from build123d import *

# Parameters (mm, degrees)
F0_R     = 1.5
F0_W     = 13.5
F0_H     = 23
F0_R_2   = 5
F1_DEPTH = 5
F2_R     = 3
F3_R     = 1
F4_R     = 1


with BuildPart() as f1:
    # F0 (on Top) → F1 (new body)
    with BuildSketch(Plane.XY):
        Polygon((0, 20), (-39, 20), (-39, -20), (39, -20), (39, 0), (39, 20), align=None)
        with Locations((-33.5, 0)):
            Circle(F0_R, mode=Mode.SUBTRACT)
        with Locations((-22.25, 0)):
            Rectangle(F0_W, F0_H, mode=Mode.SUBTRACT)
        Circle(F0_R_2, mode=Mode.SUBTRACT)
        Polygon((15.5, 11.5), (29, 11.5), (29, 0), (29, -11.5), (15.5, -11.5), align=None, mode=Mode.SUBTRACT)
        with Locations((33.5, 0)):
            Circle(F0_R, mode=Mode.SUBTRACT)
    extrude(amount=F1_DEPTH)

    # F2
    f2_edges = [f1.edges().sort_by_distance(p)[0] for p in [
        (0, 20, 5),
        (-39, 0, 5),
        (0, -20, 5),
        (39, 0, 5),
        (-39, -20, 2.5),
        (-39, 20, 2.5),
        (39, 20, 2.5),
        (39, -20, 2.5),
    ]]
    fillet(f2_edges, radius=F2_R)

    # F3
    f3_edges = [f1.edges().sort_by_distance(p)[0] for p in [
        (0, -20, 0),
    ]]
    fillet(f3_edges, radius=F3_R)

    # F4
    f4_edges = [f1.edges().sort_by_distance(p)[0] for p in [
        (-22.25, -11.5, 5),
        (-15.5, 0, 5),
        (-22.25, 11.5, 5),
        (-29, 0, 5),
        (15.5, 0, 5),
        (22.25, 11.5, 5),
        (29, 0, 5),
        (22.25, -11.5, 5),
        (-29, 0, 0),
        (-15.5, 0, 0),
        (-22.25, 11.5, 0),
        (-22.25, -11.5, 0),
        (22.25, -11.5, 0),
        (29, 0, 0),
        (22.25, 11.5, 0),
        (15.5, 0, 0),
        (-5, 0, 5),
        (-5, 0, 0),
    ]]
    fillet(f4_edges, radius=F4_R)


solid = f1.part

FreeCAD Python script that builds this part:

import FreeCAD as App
import Part
import Sketcher
from FreeCAD import Vector


def edges_at(feature, points):
    """Names of the edges that pass closest to the given points."""
    edges = feature.Shape.Edges
    near = lambda p: min(range(len(edges)), key=lambda i: edges[i].distToShape(Part.Vertex(*p))[0])
    return sorted({f"Edge{near(p) + 1}" for p in points})

doc = App.newDocument("Part")
body = doc.addObject("PartDesign::Body", "Body")

# Sketch on XY plane
sketch1 = body.newObject("Sketcher::SketchObject", "Sketch")
sketch1.AttachmentSupport = (doc.getObject("XY_Plane"), [""])
sketch1.MapMode = "FlatFace"
sketch1.addGeometry([
    Part.LineSegment(Vector(-39, 20, 0), Vector(-39, -20, 0)),  # 0
    Part.LineSegment(Vector(-39, -20, 0), Vector(39, -20, 0)),  # 1
    Part.LineSegment(Vector(39, -20, 0), Vector(39, 20, 0)),  # 2
    Part.LineSegment(Vector(39, 20, 0), Vector(-39, 20, 0)),  # 3
    Part.Circle(Vector(-33.5, 0, 0), Vector(0, 0, 1), 1.5),  # 4
    Part.LineSegment(Vector(-15.5, -11.5, 0), Vector(-29, -11.5, 0)),  # 5
    Part.LineSegment(Vector(-29, -11.5, 0), Vector(-29, 11.5, 0)),  # 6
    Part.LineSegment(Vector(-29, 11.5, 0), Vector(-15.5, 11.5, 0)),  # 7
    Part.LineSegment(Vector(-15.5, 11.5, 0), Vector(-15.5, -11.5, 0)),  # 8
    Part.Circle(Vector(0, 0, 0), Vector(0, 0, 1), 5),  # 9
    Part.LineSegment(Vector(15.5, -11.5, 0), Vector(15.5, 11.5, 0)),  # 10
    Part.LineSegment(Vector(15.5, 11.5, 0), Vector(29, 11.5, 0)),  # 11
    Part.LineSegment(Vector(29, 11.5, 0), Vector(29, -11.5, 0)),  # 12
    Part.LineSegment(Vector(29, -11.5, 0), Vector(15.5, -11.5, 0)),  # 13
    Part.Circle(Vector(33.5, 0, 0), Vector(0, 0, 1), 1.5),  # 14
], False)
sketch1.addConstraint([
    Sketcher.Constraint("Coincident", 0, 2, 1, 1),
    Sketcher.Constraint("Coincident", 1, 2, 2, 1),
    Sketcher.Constraint("Coincident", 2, 2, 3, 1),
    Sketcher.Constraint("Coincident", 3, 2, 0, 1),
    Sketcher.Constraint("Coincident", 5, 2, 6, 1),
    Sketcher.Constraint("Coincident", 6, 2, 7, 1),
    Sketcher.Constraint("Coincident", 7, 2, 8, 1),
    Sketcher.Constraint("Coincident", 8, 2, 5, 1),
    Sketcher.Constraint("Coincident", 10, 2, 11, 1),
    Sketcher.Constraint("Coincident", 11, 2, 12, 1),
    Sketcher.Constraint("Coincident", 12, 2, 13, 1),
    Sketcher.Constraint("Coincident", 13, 2, 10, 1),
    Sketcher.Constraint("Vertical", 0),
    Sketcher.Constraint("Horizontal", 1),
    Sketcher.Constraint("Vertical", 2),
    Sketcher.Constraint("Horizontal", 3),
    Sketcher.Constraint("Horizontal", 5),
    Sketcher.Constraint("Vertical", 6),
    Sketcher.Constraint("Horizontal", 7),
    Sketcher.Constraint("Vertical", 8),
    Sketcher.Constraint("Vertical", 10),
    Sketcher.Constraint("Horizontal", 11),
    Sketcher.Constraint("Vertical", 12),
    Sketcher.Constraint("Horizontal", 13),
    Sketcher.Constraint("Coincident", 9, 3, -1, 1),
    Sketcher.Constraint("Equal", 4, 14),
    Sketcher.Constraint("Symmetric", 4, 3, 14, 3, -1, 1),
    Sketcher.Constraint("Symmetric", 0, 2, 2, 2, -1, 1),
    Sketcher.Constraint("Symmetric", 8, 2, 10, 2, -1, 1),
    Sketcher.Constraint("Symmetric", 6, 2, 12, 2, -1, 1),
    Sketcher.Constraint("PointOnObject", 4, 3, -1),
    Sketcher.Constraint("Horizontal", 7, 2, 10, 2),
    Sketcher.Constraint("Diameter", 4, 3.0),
    Sketcher.Constraint("Diameter", 9, 10.0),
    Sketcher.Constraint("DistanceX", 1, 1, 1, 2, 78.0),
    Sketcher.Constraint("DistanceY", 0, 2, 0, 1, 40.0),
    Sketcher.Constraint("DistanceY", 6, 1, 6, 2, 23.0),
    Sketcher.Constraint("DistanceX", 5, 2, 5, 1, 13.5),
    Sketcher.Constraint("DistanceX", 5, 2, -1, 1, 29.0),
    Sketcher.Constraint("DistanceX", 4, 3, 14, 3, 67.0),
])
pad1 = body.newObject("PartDesign::Pad", "Pad")
pad1.Profile = sketch1
pad1.Length = 5
doc.recompute()

fillet = body.newObject("PartDesign::Fillet", "Fillet")
fillet.Base = (pad1, edges_at(pad1, [
    (0, 20, 5),
    (-39, 0, 5),
    (0, -20, 5),
    (39, 0, 5),
    (-39, -20, 2.5),
    (-39, 20, 2.5),
    (39, 20, 2.5),
    (39, -20, 2.5),
]))
fillet.Radius = 3
doc.recompute()

fillet2 = body.newObject("PartDesign::Fillet", "Fillet001")
fillet2.Base = (fillet, edges_at(fillet, [(0, -20, 0)]))
fillet2.Radius = 1
doc.recompute()

fillet3 = body.newObject("PartDesign::Fillet", "Fillet002")
fillet3.Base = (fillet2, edges_at(fillet2, [
    (-22.25, -11.5, 5),
    (-15.5, 0, 5),
    (-22.25, 11.5, 5),
    (-29, 0, 5),
    (15.5, 0, 5),
    (22.25, 11.5, 5),
    (29, 0, 5),
    (22.25, -11.5, 5),
    (-29, 0, 0),
    (-15.5, 0, 0),
    (-22.25, 11.5, 0),
    (-22.25, -11.5, 0),
    (22.25, -11.5, 0),
    (29, 0, 0),
    (22.25, 11.5, 0),
    (15.5, 0, 0),
    (-5, 0, 5),
    (-5, 0, 0),
]))
fillet3.Radius = 1

doc.recompute()
